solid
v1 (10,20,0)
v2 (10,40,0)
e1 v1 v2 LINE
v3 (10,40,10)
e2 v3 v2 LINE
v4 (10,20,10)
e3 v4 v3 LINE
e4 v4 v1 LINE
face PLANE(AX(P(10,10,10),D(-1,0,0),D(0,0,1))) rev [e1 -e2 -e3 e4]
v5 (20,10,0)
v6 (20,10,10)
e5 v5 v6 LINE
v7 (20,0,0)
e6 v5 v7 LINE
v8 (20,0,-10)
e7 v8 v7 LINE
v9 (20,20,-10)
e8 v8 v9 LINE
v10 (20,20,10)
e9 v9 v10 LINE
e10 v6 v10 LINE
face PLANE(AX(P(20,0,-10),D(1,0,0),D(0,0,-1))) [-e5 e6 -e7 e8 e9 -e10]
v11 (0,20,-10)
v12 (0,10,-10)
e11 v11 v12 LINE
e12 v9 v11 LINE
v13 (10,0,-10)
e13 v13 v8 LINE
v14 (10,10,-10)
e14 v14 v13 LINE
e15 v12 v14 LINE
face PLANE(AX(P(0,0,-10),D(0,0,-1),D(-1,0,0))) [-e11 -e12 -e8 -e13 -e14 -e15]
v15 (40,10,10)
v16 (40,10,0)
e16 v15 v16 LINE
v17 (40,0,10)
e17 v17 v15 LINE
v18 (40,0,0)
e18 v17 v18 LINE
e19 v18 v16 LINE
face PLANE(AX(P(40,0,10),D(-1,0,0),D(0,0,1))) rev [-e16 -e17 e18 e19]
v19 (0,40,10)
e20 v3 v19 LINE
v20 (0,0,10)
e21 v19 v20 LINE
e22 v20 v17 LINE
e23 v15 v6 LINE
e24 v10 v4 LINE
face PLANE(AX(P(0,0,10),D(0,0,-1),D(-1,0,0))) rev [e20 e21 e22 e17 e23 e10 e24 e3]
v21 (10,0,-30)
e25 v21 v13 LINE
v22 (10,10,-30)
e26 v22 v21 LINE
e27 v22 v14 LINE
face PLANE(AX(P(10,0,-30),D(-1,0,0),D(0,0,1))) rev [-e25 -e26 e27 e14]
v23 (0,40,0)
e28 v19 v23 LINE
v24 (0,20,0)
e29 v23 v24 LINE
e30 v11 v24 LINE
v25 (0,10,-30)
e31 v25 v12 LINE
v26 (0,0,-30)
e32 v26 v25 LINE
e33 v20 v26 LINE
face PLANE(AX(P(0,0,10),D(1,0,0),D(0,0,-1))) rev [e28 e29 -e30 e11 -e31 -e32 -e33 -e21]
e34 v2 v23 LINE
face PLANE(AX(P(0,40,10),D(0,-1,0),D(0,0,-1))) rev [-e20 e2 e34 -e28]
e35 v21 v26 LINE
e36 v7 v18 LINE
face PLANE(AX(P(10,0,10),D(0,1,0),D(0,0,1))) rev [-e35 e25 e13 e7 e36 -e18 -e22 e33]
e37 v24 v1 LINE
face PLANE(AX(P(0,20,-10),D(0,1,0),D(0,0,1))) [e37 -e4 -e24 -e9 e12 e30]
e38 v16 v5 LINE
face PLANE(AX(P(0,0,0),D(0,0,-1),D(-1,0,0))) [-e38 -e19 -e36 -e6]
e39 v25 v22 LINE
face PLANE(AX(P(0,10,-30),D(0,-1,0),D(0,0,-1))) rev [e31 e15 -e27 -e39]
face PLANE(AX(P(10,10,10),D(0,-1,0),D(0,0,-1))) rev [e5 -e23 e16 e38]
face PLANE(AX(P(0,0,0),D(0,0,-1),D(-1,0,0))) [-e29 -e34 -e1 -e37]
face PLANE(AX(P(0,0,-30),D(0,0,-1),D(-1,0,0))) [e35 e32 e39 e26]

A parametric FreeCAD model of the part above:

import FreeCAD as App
import Part
import Sketcher

V = App.Vector

doc = App.newDocument("Part")
body = doc.addObject("PartDesign::Body", "Body")

# Sketch on XY plane
sketch1 = body.newObject("Sketcher::SketchObject", "Sketch")
sketch1.AttachmentSupport = (doc.getObject("XY_Plane"), [""])
sketch1.MapMode = "FlatFace"
sketch1.addGeometry([
    Part.LineSegment(V(0, 0, 0), V(40, 0, 0)),  # 0
    Part.LineSegment(V(40, 0, 0), V(40, 10, 0)),  # 1
    Part.LineSegment(V(40, 10, 0), V(10, 10, 0)),  # 2
    Part.LineSegment(V(10, 10, 0), V(10, 40, 0)),  # 3
    Part.LineSegment(V(10, 40, 0), V(0, 40, 0)),  # 4
    Part.LineSegment(V(0, 40, 0), V(0, 0, 0)),  # 5
], False)
sketch1.addConstraint([
    Sketcher.Constraint("Coincident", 0, 2, 1, 1),
    Sketcher.Constraint("Coincident", 1, 2, 2, 1),
    Sketcher.Constraint("Coincident", 2, 2, 3, 1),
    Sketcher.Constraint("Coincident", 3, 2, 4, 1),
    Sketcher.Constraint("Coincident", 4, 2, 5, 1),
    Sketcher.Constraint("Coincident", 5, 2, 0, 1),
    Sketcher.Constraint("Horizontal", 0),
    Sketcher.Constraint("Vertical", 1),
    Sketcher.Constraint("Horizontal", 2),
    Sketcher.Constraint("Vertical", 3),
    Sketcher.Constraint("Horizontal", 4),
    Sketcher.Constraint("Vertical", 5),
    Sketcher.Constraint("Coincident", 5, 2, -1, 1),
    Sketcher.Constraint("Equal", 4, 1),
    Sketcher.Constraint("Equal", 2, 3),
    Sketcher.Constraint("DistanceX", 0, 1, 0, 2, 40.0),
    Sketcher.Constraint("DistanceX", 2, 2, 2, 1, 30.0),
])
pad1 = body.newObject("PartDesign::Pad", "Pad")
pad1.Profile = sketch1
pad1.Length = 10

# Sketch on XY plane
sketch2 = body.newObject("Sketcher::SketchObject", "Sketch001")
sketch2.AttachmentSupport = (doc.getObject("XY_Plane"), [""])
sketch2.MapMode = "FlatFace"
sketch2.addGeometry([
    Part.LineSegment(V(10, 10, 0), V(10, 0, 0)),
    Part.LineSegment(V(10, 0, 0), V(0, 0, 0)),
    Part.LineSegment(V(0, 0, 0), V(0, 10, 0)),
    Part.LineSegment(V(0, 10, 0), V(10, 10, 0)),
], False)
sketch2.addConstraint([
    Sketcher.Constraint("Coincident", 0, 2, 1, 1),
    Sketcher.Constraint("Coincident", 1, 2, 2, 1),
    Sketcher.Constraint("Coincident", 2, 2, 3, 1),
    Sketcher.Constraint("Coincident", 3, 2, 0, 1),
    Sketcher.Constraint("Vertical", 0),
    Sketcher.Constraint("Horizontal", 1),
    Sketcher.Constraint("Vertical", 2),
    Sketcher.Constraint("Horizontal", 3),
    Sketcher.Constraint("Coincident", 1, 2, -1, 1),
    Sketcher.Constraint("Equal", 3, 0),
    Sketcher.Constraint("DistanceX", 1, 2, 1, 1, 10.0),
])
pad2 = body.newObject("PartDesign::Pad", "Pad001")
pad2.Profile = sketch2
pad2.Length = 30
pad2.Reversed = True

# Sketch on XY plane
sketch3 = body.newObject("Sketcher::SketchObject", "Sketch002")
sketch3.AttachmentSupport = (doc.getObject("XY_Plane"), [""])
sketch3.MapMode = "FlatFace"
sketch3.AttachmentOffset = App.Placement(V(0, 0, 10), App.Rotation())
sketch3.addGeometry([
    Part.LineSegment(V(0, 20, 0), V(0, 0, 0)),
    Part.LineSegment(V(0, 0, 0), V(20, 0, 0)),
    Part.LineSegment(V(20, 0, 0), V(20, 20, 0)),
    Part.LineSegment(V(20, 20, 0), V(0, 20, 0)),
], False)
sketch3.addConstraint([
    Sketcher.Constraint("Coincident", 0, 2, 1, 1),
    Sketcher.Constraint("Coincident", 1, 2, 2, 1),
    Sketcher.Constraint("Coincident", 2, 2, 3, 1),
    Sketcher.Constraint("Coincident", 3, 2, 0, 1),
    Sketcher.Constraint("Vertical", 0),
    Sketcher.Constraint("Horizontal", 1),
    Sketcher.Constraint("Vertical", 2),
    Sketcher.Constraint("Horizontal", 3),
    Sketcher.Constraint("Coincident", 0, 2, -1, 1),
    Sketcher.Constraint("Equal", 3, 0),
    Sketcher.Constraint("DistanceX", 1, 1, 1, 2, 20.0),
])
pad3 = body.newObject("PartDesign::Pad", "Pad002")
pad3.Profile = sketch3
pad3.Length = 20
pad3.Reversed = True

doc.recompute()
